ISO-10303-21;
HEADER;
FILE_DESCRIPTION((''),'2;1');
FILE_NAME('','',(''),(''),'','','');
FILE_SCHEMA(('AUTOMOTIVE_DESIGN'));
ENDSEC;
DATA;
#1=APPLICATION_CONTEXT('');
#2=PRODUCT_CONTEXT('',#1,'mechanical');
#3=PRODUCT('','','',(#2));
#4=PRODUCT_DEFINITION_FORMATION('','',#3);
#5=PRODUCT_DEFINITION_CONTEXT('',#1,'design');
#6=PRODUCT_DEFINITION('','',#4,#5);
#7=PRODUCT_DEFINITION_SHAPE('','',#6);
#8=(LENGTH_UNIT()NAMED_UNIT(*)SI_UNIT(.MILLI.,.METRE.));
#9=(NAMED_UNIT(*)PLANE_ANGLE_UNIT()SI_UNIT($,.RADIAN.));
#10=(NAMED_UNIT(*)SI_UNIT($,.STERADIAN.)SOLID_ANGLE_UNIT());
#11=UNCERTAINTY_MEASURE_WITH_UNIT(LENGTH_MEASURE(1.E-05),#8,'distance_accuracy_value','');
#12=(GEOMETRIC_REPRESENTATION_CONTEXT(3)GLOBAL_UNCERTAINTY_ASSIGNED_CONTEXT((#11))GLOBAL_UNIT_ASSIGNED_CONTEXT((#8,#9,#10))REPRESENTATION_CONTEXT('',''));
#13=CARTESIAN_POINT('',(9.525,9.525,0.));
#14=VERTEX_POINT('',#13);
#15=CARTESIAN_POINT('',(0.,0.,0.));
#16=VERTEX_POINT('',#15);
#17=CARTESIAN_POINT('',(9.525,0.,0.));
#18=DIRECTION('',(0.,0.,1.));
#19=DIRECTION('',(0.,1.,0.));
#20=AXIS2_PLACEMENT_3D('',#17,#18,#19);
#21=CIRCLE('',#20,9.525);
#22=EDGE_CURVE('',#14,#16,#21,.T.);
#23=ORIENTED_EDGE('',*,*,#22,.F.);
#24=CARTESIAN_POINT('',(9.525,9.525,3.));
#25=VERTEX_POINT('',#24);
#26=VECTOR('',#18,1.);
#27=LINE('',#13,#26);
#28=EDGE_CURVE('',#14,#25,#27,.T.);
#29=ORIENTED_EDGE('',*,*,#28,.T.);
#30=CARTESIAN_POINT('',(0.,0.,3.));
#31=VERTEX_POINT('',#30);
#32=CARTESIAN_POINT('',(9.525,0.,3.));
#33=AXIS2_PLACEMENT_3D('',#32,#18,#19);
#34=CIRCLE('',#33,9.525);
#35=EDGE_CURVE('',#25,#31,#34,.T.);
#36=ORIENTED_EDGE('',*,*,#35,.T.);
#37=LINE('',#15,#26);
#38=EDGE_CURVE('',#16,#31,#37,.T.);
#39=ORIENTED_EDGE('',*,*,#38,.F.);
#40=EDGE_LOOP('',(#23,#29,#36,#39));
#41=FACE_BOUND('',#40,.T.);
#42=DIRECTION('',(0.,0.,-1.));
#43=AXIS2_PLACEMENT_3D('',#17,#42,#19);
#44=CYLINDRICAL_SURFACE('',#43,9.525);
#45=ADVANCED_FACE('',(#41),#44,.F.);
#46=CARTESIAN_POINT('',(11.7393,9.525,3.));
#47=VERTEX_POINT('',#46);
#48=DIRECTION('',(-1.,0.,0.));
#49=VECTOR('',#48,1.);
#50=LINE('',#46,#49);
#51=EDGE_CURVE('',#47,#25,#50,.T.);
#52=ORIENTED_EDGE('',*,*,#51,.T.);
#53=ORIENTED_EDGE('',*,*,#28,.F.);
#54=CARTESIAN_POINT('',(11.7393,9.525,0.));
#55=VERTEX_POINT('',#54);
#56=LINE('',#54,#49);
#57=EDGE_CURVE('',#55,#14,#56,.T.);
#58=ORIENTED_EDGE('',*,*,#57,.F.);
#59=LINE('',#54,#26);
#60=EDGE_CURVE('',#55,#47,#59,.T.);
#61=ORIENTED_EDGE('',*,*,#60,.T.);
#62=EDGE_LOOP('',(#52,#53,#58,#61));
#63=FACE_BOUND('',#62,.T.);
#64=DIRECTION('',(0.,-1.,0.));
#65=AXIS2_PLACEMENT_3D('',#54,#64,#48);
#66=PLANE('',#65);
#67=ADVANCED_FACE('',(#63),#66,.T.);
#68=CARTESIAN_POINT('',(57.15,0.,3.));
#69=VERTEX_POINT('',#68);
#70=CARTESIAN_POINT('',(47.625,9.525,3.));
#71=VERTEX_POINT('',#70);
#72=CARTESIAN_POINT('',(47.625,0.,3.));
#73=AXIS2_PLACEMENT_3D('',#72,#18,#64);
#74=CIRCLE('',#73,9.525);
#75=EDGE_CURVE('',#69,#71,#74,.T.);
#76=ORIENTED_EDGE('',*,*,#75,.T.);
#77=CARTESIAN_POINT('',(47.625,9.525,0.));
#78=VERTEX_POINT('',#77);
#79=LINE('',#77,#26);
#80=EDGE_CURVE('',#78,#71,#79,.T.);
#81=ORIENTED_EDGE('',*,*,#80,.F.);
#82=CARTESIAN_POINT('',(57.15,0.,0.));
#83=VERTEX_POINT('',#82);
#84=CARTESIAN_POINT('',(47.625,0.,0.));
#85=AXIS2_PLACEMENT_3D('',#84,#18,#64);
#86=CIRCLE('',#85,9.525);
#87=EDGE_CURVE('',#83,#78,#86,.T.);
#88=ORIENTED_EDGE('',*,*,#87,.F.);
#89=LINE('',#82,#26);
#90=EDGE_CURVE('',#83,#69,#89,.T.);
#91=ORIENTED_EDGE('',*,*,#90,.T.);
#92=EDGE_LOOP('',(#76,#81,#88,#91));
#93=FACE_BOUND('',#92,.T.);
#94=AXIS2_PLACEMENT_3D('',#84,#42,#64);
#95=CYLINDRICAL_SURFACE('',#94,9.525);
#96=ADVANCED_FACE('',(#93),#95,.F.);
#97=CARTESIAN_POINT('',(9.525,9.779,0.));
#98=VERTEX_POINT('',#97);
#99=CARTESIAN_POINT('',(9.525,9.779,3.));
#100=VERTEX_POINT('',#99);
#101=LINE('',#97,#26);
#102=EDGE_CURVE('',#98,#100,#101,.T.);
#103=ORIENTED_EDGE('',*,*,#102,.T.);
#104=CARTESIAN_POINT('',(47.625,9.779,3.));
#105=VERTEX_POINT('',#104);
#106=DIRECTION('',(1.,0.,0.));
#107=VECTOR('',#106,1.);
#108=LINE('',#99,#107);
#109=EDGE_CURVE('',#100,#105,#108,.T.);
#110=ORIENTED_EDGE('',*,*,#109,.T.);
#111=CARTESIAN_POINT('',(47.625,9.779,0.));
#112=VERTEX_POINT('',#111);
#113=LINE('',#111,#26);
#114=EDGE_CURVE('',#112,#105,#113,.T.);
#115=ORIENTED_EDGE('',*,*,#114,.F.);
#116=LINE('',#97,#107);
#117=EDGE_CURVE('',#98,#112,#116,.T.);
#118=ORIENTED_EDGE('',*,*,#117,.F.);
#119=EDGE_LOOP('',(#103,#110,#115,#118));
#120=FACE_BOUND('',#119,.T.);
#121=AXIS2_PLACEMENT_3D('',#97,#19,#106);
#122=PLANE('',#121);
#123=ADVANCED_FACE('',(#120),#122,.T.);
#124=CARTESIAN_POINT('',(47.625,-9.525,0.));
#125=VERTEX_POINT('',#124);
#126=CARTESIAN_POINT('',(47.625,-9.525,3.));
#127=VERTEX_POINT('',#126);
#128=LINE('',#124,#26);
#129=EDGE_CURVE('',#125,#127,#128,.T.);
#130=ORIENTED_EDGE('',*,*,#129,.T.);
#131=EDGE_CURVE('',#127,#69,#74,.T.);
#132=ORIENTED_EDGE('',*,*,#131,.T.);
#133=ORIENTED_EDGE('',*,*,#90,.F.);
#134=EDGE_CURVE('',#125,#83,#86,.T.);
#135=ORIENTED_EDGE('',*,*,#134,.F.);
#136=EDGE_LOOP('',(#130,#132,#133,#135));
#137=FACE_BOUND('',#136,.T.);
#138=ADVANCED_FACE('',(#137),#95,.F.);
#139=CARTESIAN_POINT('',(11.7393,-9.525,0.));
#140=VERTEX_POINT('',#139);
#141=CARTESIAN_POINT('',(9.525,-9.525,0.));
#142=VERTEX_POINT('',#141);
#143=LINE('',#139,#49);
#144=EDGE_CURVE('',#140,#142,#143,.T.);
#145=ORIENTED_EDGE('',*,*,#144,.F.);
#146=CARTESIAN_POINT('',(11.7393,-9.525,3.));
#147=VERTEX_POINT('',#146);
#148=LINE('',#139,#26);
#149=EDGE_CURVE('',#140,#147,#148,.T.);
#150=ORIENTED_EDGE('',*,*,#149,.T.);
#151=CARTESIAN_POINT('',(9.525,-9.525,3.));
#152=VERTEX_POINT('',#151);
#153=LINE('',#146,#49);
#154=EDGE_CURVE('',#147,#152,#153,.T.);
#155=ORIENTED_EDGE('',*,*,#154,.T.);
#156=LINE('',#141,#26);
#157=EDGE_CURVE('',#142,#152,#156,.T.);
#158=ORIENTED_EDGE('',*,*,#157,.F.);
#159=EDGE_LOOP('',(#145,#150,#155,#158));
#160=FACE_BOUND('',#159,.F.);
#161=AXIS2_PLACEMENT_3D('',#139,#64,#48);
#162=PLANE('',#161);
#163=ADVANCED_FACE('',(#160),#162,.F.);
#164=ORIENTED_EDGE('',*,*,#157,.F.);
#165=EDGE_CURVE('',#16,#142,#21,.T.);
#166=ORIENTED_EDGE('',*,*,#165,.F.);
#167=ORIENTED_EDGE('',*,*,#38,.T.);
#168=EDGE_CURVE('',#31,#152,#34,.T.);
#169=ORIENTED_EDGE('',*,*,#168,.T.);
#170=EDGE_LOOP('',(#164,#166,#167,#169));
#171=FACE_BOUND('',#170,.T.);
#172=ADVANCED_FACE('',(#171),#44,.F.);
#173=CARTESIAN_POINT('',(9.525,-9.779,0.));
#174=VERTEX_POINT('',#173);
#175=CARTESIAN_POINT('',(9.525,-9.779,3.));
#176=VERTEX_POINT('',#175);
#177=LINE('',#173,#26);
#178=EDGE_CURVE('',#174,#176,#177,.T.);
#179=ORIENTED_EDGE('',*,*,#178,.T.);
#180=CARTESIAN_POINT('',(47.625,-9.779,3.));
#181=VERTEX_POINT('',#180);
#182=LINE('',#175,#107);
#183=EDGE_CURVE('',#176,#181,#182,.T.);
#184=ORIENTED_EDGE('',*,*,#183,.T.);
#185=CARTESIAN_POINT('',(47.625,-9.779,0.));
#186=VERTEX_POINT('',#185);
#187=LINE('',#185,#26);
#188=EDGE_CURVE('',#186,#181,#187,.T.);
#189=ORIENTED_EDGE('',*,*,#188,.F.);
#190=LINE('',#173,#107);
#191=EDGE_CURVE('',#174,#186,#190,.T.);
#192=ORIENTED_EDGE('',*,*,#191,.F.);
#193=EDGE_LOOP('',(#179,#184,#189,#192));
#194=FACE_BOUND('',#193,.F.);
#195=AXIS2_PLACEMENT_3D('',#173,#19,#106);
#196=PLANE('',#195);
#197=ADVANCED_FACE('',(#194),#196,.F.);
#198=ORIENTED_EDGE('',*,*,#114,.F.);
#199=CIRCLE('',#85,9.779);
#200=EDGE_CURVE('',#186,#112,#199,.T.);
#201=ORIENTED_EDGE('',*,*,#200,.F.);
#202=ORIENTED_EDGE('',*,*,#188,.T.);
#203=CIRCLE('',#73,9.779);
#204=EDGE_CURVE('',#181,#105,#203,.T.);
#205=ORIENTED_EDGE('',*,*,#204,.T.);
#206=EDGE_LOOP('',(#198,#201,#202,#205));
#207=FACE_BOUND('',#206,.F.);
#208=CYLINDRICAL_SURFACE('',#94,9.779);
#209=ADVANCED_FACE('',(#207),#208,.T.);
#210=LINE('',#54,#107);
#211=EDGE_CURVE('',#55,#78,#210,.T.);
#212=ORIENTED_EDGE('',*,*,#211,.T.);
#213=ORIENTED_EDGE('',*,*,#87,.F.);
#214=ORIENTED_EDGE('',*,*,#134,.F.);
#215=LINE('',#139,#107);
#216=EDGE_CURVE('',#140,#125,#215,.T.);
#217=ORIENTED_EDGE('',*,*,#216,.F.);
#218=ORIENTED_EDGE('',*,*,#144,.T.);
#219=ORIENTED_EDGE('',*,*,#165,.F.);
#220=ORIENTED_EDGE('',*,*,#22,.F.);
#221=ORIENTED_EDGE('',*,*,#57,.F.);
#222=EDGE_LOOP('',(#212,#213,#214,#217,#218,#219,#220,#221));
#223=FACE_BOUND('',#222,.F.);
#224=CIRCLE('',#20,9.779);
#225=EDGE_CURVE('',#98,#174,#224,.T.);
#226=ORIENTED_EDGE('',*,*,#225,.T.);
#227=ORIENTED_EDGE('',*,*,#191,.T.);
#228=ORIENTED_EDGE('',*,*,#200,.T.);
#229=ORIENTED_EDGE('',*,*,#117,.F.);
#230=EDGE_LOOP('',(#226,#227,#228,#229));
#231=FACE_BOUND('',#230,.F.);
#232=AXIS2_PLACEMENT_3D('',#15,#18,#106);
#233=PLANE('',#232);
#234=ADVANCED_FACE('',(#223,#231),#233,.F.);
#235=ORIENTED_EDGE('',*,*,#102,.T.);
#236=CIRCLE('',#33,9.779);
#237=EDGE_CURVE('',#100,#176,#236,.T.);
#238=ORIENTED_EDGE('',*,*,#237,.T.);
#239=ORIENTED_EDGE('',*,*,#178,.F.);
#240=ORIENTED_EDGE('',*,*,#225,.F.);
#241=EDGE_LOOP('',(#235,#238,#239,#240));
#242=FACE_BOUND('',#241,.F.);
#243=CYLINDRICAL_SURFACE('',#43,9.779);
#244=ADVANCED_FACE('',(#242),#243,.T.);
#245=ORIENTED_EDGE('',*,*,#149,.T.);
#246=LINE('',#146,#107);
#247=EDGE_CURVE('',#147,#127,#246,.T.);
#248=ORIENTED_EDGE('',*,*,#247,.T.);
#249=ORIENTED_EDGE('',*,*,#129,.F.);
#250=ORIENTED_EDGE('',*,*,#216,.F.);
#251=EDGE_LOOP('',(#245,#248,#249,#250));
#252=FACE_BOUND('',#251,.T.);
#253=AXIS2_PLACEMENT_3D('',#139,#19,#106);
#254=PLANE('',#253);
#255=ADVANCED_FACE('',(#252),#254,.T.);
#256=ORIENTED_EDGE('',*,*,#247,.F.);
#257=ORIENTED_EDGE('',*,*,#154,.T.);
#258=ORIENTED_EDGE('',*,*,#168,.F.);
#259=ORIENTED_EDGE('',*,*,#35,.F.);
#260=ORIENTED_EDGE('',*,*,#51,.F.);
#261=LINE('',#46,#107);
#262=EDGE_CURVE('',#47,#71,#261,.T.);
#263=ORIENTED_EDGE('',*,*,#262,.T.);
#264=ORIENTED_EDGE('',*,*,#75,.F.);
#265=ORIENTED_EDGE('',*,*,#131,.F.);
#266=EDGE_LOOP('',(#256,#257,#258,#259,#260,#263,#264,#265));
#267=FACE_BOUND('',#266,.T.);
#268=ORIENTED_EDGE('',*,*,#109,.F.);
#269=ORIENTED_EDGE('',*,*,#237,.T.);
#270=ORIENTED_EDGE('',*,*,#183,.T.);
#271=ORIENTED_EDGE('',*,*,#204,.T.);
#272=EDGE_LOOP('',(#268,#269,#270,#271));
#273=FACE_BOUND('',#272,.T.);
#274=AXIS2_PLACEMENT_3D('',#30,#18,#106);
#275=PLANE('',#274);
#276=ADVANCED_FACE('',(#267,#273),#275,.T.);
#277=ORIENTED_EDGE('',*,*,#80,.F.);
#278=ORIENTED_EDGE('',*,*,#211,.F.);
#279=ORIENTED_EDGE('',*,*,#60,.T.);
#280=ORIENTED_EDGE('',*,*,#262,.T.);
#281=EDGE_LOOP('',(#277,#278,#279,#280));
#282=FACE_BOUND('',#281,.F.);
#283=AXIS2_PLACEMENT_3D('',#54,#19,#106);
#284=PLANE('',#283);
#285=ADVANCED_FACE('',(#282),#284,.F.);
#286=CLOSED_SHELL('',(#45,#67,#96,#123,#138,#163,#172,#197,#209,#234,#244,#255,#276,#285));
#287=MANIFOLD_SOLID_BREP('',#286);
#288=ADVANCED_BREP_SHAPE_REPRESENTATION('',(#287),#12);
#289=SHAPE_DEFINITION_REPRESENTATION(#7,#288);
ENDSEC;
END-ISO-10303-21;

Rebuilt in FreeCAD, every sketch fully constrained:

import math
import FreeCAD as App
import Part
import Sketcher

V = App.Vector
Q = App.Units.Quantity

doc = App.newDocument("Part")
body = doc.addObject("PartDesign::Body", "Body")

sketch1 = doc.addObject("Sketcher::SketchObject", "Sketch")
body.addObject(sketch1)
sketch1.AttachmentSupport = (doc.XY_Plane, [""])
sketch1.MapMode = "FlatFace"
sketch1.addGeometry([
    Part.LineSegment(V(10, -10, 0), V(48, -10, 0)),
    Part.ArcOfCircle(Part.Circle(V(48, 0, 0), V(0, 0, 1), 10), math.radians(-90), math.radians(90)),
    Part.LineSegment(V(48, 10, 0), V(10, 10, 0)),
    Part.ArcOfCircle(Part.Circle(V(10, 0, 0), V(0, 0, 1), 10), math.radians(90), math.radians(270)),
    Part.ArcOfCircle(Part.Circle(V(10, 0, 0), V(0, 0, 1), 10), math.radians(90), math.radians(270)),
    Part.LineSegment(V(10, 10, 0), V(48, 10, 0)),
    Part.ArcOfCircle(Part.Circle(V(48, 0, 0), V(0, 0, 1), 10), math.radians(-90), math.radians(90)),
    Part.LineSegment(V(48, -10, 0), V(10, -10, 0)),
], False)
sketch1.addConstraint([
    Sketcher.Constraint("Tangent", 0, 2, 1, 1),
    Sketcher.Constraint("Tangent", 1, 2, 2, 1),
    Sketcher.Constraint("Tangent", 2, 2, 3, 1),
    Sketcher.Constraint("Tangent", 3, 2, 0, 1),
    Sketcher.Constraint("Tangent", 4, 1, 5, 1),
    Sketcher.Constraint("Tangent", 5, 2, 6, 2),
    Sketcher.Constraint("Tangent", 6, 1, 7, 1),
    Sketcher.Constraint("Tangent", 7, 2, 4, 2),
    Sketcher.Constraint("Horizontal", 0),
    Sketcher.Constraint("Horizontal", 2),
    Sketcher.Constraint("Horizontal", 5),
    Sketcher.Constraint("Horizontal", 7),
    Sketcher.Constraint("Coincident", 4, 3, 3, 3),
    Sketcher.Constraint("PointOnObject", 1, 3, -1),
    Sketcher.Constraint("Vertical", 6, 3, 0, 2),
    Sketcher.Constraint("Radius", 1, Q("0.385 in")),
    Sketcher.Constraint("DistanceX", 0, 1, 0, 2, Q("1.5 in")),
    Sketcher.Constraint("Radius", 4, Q("0.375 in")),
    Sketcher.Constraint("DistanceX", -1, 1, 1, 3, Q("1.875 in")),
])
pad1 = doc.addObject("PartDesign::Pad", "Pad")
body.addObject(pad1)
pad1.Profile = sketch1
pad1.Length = Q("0.1181102 in")

doc.recompute()
